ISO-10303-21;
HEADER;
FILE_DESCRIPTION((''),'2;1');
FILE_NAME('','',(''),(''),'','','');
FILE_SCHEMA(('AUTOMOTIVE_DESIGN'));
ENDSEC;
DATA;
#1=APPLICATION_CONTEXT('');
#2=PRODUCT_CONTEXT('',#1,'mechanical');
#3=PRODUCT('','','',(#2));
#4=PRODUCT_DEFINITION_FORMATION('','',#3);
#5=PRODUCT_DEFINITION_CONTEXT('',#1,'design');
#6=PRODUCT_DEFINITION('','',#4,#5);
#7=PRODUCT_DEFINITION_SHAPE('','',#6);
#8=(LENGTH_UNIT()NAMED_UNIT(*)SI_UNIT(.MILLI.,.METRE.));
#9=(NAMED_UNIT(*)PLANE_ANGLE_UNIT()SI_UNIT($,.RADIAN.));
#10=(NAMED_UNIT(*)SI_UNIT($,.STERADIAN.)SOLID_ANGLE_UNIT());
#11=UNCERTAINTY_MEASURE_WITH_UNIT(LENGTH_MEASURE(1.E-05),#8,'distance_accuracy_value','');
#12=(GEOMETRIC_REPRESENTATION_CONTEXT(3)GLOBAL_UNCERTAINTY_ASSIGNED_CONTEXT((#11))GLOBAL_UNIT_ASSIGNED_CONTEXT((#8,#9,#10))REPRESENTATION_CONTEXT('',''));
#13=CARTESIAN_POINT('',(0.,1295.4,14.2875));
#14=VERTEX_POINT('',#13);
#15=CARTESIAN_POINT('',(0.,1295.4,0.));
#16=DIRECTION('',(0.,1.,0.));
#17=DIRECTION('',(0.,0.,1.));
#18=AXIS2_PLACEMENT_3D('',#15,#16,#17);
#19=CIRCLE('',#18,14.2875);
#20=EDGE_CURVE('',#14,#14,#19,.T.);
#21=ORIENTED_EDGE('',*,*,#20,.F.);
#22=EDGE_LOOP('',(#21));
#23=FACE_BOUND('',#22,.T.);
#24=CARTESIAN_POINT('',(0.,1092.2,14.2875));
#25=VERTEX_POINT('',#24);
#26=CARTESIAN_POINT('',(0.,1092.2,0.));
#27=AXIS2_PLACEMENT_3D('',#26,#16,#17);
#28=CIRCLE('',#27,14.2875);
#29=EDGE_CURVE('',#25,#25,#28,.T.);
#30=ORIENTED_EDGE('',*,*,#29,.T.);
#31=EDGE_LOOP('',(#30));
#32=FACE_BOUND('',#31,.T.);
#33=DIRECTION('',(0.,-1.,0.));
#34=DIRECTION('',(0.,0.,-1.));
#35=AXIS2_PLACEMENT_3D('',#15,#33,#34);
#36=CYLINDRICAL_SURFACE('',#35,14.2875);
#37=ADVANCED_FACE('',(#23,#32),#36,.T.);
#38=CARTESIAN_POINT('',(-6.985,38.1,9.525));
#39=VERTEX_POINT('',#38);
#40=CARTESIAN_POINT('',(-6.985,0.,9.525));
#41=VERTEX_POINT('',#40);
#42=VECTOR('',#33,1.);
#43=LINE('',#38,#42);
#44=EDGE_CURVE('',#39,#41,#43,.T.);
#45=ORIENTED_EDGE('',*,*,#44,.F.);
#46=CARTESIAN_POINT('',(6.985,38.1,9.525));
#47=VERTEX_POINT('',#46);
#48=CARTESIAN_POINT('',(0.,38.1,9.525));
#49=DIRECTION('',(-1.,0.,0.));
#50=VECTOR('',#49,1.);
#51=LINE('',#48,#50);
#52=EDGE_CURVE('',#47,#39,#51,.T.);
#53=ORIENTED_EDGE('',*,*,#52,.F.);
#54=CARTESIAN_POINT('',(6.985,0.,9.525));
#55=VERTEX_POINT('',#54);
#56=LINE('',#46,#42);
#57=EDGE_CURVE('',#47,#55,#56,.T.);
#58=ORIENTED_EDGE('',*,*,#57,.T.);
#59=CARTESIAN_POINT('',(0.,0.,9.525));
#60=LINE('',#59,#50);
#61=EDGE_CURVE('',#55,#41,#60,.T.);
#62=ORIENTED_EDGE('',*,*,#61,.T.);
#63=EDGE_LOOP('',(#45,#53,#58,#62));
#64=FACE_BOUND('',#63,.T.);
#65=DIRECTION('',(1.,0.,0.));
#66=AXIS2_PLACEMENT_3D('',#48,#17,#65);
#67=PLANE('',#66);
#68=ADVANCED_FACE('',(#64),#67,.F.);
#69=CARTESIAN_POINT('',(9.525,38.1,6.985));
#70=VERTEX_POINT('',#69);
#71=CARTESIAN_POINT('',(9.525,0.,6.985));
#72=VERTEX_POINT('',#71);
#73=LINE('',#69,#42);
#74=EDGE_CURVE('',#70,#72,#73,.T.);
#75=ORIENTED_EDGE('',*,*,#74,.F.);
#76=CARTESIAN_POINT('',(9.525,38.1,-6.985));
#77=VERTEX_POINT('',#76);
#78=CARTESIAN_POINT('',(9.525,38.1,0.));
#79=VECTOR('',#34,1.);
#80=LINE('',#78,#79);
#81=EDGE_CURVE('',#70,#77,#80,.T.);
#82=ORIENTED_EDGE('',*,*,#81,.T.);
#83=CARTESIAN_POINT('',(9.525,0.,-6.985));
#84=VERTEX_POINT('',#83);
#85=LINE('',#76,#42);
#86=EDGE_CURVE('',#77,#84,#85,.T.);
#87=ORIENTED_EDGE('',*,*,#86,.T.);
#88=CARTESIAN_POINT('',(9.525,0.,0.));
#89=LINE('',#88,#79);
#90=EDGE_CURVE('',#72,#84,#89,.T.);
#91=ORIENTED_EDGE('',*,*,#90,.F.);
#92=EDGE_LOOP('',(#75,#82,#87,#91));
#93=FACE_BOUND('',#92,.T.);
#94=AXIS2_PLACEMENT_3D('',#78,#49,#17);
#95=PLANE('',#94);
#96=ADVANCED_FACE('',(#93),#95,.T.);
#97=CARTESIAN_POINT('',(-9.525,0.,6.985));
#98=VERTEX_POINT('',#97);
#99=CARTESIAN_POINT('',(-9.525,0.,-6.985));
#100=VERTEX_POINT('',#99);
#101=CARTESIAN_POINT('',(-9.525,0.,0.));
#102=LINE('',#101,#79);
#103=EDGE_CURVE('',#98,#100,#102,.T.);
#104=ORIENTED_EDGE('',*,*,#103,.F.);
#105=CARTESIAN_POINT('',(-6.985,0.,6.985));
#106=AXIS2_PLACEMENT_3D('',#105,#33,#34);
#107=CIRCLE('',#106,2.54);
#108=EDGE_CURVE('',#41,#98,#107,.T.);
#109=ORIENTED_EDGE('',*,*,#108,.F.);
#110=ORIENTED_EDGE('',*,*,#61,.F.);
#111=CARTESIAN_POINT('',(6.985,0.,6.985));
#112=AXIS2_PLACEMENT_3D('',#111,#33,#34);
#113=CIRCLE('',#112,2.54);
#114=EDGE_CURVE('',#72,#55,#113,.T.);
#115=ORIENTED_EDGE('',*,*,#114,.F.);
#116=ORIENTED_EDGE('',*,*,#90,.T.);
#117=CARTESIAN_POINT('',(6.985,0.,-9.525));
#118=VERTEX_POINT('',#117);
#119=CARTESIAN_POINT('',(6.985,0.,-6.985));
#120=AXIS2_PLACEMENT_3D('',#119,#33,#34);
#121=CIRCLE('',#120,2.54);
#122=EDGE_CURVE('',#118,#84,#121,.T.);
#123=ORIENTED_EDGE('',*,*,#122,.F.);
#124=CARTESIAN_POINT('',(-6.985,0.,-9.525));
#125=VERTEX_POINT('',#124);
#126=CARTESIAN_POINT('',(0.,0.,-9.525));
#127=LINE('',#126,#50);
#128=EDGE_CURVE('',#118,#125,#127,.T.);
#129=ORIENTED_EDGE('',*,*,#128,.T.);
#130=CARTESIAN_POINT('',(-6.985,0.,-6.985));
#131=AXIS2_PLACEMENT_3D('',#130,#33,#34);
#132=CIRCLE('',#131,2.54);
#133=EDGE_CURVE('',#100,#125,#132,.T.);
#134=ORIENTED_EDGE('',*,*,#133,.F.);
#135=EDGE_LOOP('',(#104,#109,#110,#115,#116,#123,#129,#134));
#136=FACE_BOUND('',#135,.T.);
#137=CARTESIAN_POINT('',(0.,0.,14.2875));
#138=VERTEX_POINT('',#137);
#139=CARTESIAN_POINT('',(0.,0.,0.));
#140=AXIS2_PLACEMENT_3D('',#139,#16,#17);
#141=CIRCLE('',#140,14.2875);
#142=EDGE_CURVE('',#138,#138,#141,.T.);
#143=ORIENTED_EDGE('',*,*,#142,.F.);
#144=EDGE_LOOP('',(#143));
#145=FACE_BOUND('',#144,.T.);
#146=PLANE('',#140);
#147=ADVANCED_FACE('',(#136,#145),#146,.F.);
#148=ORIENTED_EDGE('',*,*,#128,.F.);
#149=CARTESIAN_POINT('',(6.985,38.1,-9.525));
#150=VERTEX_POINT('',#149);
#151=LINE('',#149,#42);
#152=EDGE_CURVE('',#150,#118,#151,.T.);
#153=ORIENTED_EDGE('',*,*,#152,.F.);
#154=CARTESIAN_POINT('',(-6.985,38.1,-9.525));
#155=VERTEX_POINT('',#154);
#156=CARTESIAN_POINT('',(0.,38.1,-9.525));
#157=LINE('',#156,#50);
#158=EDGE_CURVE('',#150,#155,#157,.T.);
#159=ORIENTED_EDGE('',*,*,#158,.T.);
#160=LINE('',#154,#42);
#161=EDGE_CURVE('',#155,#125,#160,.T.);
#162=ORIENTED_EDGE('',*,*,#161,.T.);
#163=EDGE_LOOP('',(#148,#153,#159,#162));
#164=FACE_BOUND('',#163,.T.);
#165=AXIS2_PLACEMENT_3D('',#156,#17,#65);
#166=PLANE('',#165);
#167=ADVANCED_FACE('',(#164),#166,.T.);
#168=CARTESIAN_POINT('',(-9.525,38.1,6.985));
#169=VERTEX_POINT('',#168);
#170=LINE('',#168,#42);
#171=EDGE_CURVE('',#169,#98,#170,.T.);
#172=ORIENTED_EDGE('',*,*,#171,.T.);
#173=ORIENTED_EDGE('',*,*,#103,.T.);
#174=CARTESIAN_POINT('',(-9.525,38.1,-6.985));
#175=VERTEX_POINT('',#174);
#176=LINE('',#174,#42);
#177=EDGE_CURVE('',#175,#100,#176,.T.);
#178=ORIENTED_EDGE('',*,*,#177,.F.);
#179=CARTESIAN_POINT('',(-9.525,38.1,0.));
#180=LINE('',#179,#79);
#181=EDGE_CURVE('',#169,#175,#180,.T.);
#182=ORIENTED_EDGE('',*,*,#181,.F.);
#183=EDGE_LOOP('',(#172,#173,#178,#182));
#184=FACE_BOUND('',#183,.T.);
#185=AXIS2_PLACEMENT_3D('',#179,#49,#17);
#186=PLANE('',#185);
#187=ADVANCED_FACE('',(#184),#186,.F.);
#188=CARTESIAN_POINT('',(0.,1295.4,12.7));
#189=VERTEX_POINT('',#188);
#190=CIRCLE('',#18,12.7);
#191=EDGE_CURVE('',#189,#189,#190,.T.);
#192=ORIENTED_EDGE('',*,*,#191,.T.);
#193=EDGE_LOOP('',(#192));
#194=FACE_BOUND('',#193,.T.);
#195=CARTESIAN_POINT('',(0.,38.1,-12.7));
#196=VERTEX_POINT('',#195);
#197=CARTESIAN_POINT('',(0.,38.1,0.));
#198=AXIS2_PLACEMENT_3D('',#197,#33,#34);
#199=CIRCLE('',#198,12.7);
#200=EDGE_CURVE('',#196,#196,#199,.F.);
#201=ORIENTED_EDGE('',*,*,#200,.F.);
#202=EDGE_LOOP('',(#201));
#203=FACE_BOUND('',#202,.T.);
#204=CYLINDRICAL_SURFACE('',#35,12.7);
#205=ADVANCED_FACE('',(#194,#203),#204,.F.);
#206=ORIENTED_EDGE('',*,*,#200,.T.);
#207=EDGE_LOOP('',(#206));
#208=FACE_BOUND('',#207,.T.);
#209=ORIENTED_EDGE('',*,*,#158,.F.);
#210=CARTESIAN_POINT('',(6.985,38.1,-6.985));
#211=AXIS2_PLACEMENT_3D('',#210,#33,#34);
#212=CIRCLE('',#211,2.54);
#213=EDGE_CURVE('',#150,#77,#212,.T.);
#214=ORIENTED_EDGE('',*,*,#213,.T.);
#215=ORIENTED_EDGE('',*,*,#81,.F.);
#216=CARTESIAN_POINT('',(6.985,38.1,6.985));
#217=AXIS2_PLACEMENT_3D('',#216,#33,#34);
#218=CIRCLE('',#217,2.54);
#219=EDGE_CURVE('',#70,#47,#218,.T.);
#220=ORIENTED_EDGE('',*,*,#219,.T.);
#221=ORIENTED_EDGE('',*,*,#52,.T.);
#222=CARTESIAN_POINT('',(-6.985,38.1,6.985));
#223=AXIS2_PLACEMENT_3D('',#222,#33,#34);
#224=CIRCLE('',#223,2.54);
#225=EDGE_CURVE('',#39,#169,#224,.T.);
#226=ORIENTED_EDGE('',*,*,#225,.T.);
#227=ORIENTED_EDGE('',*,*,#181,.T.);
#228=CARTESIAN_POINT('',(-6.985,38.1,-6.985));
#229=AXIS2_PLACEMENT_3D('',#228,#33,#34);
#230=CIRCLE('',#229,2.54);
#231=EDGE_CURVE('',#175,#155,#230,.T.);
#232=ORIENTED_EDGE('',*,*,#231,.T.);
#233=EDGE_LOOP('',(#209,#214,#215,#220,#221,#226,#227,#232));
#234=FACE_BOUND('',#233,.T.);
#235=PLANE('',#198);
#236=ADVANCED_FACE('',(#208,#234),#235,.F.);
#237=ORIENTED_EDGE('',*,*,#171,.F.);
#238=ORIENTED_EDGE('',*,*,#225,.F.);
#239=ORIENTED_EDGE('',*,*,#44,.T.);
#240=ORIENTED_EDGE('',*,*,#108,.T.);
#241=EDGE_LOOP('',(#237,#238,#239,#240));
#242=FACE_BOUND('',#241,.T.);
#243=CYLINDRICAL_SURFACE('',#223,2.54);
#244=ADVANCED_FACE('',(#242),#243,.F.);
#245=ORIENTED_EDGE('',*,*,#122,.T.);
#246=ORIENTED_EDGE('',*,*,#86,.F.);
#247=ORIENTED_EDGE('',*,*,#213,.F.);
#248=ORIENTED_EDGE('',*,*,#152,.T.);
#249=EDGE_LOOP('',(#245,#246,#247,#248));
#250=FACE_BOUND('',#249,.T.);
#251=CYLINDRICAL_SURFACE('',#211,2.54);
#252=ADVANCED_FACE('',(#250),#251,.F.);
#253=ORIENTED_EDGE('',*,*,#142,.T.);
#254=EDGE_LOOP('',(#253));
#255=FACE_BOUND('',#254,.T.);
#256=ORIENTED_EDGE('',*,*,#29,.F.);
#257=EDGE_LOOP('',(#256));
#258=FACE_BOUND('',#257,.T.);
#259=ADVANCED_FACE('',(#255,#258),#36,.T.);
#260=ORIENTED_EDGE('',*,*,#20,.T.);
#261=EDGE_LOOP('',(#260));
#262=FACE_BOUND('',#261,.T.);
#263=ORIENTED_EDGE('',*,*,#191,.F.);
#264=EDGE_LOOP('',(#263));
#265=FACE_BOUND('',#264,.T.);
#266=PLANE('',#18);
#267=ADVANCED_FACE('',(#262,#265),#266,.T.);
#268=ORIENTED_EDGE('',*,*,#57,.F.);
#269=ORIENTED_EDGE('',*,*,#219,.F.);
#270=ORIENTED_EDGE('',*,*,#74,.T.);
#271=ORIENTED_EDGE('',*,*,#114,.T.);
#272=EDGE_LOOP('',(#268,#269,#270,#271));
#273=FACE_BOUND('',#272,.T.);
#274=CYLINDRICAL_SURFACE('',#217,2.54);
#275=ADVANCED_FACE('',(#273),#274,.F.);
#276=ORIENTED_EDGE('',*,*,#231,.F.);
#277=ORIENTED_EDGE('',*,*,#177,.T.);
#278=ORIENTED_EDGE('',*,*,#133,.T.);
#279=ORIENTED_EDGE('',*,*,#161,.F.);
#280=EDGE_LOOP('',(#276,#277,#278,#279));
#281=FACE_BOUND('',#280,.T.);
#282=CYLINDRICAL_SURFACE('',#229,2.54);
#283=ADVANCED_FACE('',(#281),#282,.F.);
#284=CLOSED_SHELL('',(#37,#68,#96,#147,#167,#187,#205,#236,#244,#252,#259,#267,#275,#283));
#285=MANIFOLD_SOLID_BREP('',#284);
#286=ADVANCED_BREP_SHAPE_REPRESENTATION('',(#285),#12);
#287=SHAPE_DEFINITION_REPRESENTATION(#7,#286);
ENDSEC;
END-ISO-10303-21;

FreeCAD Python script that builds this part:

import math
import FreeCAD as App
import Part
import Sketcher
Q = App.Units.Quantity

doc = App.newDocument("Part")
body = doc.addObject("PartDesign::Body", "Body")

sketch1 = body.newObject("Sketcher::SketchObject", "Sketch")
sketch1.AttachmentSupport = (doc.getObject("XZ_Plane"), [""])
sketch1.MapMode = "FlatFace"
sketch1.addGeometry(Part.Circle(App.Vector(0, 0, 0), App.Vector(0, 0, 1), 14), False)
sketch1.addGeometry(Part.Circle(App.Vector(0, 0, 0), App.Vector(0, 0, 1), 13), False)
sketch1.addConstraint(Sketcher.Constraint("Coincident", 0, 3, -1, 1))
sketch1.addConstraint(Sketcher.Constraint("Coincident", 1, 3, -1, 1))
sketch1.addConstraint(Sketcher.Constraint("Diameter", 1, Q("1 in")))
sketch1.addConstraint(Sketcher.Constraint("Diameter", 0, Q("1.125 in")))
pad1 = body.newObject("PartDesign::Pad", "Pad")
pad1.Profile = sketch1
pad1.Length = Q("51 in")
pad1.Reversed = True

sketch2 = body.newObject("Sketcher::SketchObject", "Sketch001")
sketch2.AttachmentSupport = (doc.getObject("XZ_Plane"), [""])
sketch2.MapMode = "FlatFace"
sketch2.addGeometry(Part.Circle(App.Vector(0, 0, 0), App.Vector(0, 0, 1), 12.7), False)
sketch2.addGeometry(Part.ArcOfCircle(Part.Circle(App.Vector(-7, 7, 0), App.Vector(0, 0, 1), 2.5), math.radians(90), math.radians(180)), False)
sketch2.addGeometry(Part.LineSegment(App.Vector(-7, 9.5, 0), App.Vector(7, 9.5, 0)), False)
sketch2.addGeometry(Part.ArcOfCircle(Part.Circle(App.Vector(7, 7, 0), App.Vector(0, 0, 1), 2.5), math.radians(0), math.radians(90)), False)
sketch2.addGeometry(Part.LineSegment(App.Vector(9.5, 7, 0), App.Vector(9.5, -7, 0)), False)
sketch2.addGeometry(Part.ArcOfCircle(Part.Circle(App.Vector(7, -7, 0), App.Vector(0, 0, 1), 2.5), math.radians(-90), math.radians(0)), False)
sketch2.addGeometry(Part.LineSegment(App.Vector(7, -9.5, 0), App.Vector(-7, -9.5, 0)), False)
sketch2.addGeometry(Part.ArcOfCircle(Part.Circle(App.Vector(-7, -7, 0), App.Vector(0, 0, 1), 2.5), math.radians(-180), math.radians(-90)), False)
sketch2.addGeometry(Part.LineSegment(App.Vector(-9.5, -7, 0), App.Vector(-9.5, 7, 0)), False)
sketch2.addConstraint(Sketcher.Constraint("Tangent", 1, 1, 2, 1))
sketch2.addConstraint(Sketcher.Constraint("Tangent", 2, 2, 3, 2))
sketch2.addConstraint(Sketcher.Constraint("Tangent", 3, 1, 4, 1))
sketch2.addConstraint(Sketcher.Constraint("Tangent", 4, 2, 5, 2))
sketch2.addConstraint(Sketcher.Constraint("Tangent", 5, 1, 6, 1))
sketch2.addConstraint(Sketcher.Constraint("Tangent", 6, 2, 7, 2))
sketch2.addConstraint(Sketcher.Constraint("Tangent", 7, 1, 8, 1))
sketch2.addConstraint(Sketcher.Constraint("Tangent", 8, 2, 1, 2))
sketch2.addConstraint(Sketcher.Constraint("Horizontal", 2))
sketch2.addConstraint(Sketcher.Constraint("Vertical", 4))
sketch2.addConstraint(Sketcher.Constraint("Horizontal", 6))
sketch2.addConstraint(Sketcher.Constraint("Vertical", 8))
sketch2.addConstraint(Sketcher.Constraint("Coincident", 0, 3, -1, 1))
sketch2.addConstraint(Sketcher.Constraint("Equal", 1, 3))
sketch2.addConstraint(Sketcher.Constraint("Equal", 3, 5))
sketch2.addConstraint(Sketcher.Constraint("Equal", 5, 7))
sketch2.addConstraint(Sketcher.Constraint("Symmetric", 1, 3, 5, 3, -1, 1))
sketch2.addConstraint(Sketcher.Constraint("Equal", 6, 4))
sketch2.addConstraint(Sketcher.Constraint("Diameter", 0, Q("1 in")))
sketch2.addConstraint(Sketcher.Constraint("Radius", 1, Q("0.1 in")))
sketch2.addConstraint(Sketcher.Constraint("DistanceX", 2, 1, 2, 2, Q("0.55 in")))
pad2 = body.newObject("PartDesign::Pad", "Pad001")
pad2.Profile = sketch2
pad2.Length = Q("1.5 in")
pad2.Reversed = True

doc.recompute()
